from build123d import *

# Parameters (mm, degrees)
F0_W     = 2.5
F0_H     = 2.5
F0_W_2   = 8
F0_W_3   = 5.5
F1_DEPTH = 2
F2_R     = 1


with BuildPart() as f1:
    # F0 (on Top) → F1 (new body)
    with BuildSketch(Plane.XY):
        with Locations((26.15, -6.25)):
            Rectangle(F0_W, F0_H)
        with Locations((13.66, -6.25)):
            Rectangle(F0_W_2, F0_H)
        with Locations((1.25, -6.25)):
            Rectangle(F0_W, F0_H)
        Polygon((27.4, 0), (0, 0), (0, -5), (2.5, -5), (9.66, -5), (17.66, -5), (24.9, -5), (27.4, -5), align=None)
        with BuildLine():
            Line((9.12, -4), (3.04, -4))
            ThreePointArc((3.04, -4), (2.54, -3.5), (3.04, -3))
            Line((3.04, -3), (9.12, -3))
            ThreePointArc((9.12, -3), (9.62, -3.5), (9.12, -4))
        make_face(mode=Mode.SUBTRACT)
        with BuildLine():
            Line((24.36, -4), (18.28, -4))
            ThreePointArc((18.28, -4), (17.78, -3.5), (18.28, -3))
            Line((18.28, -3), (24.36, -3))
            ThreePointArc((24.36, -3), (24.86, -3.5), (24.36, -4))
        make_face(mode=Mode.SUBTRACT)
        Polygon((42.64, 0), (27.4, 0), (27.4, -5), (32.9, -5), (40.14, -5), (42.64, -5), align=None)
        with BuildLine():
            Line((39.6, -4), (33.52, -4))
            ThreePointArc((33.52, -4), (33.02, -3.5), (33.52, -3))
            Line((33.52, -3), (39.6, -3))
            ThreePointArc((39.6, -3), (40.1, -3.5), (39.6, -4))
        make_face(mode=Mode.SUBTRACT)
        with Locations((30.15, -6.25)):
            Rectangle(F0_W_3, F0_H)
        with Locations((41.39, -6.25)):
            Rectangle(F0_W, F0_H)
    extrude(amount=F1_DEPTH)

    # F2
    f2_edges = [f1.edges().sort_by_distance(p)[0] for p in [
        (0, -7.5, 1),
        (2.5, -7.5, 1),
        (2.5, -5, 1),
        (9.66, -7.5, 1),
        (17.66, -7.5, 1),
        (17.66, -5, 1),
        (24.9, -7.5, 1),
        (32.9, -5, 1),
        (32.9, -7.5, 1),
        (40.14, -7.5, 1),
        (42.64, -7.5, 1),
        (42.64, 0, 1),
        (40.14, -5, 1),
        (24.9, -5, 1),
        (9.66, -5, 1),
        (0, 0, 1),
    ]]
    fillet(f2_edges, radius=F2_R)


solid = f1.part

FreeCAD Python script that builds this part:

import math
import FreeCAD as App
import Part
import Sketcher

V = App.Vector
Q = App.Units.Quantity


def edges_at(feature, points):
    """Names of the edges that pass closest to the given points."""
    edges = feature.Shape.Edges
    near = lambda p: min(range(len(edges)), key=lambda i: edges[i].distToShape(Part.Vertex(*p))[0])
    return sorted({f"Edge{near(p) + 1}" for p in points})


def add_polygon(sketch, points):
    """Adds a closed chain of lines whose ends are joined by coincident constraints."""
    first, n = sketch.GeometryCount, len(points)
    for a, b in zip(points, points[1:] + points[:1]):
        sketch.addGeometry(Part.LineSegment(App.Vector(*a, 0), App.Vector(*b, 0)), False)
    for i in range(n):
        sketch.addConstraint(Sketcher.Constraint("Coincident", first + i, 2, first + (i + 1) % n, 1))

doc = App.newDocument("Part")
body = doc.addObject("PartDesign::Body", "Body")

# Sketch on XY plane
sketch1 = body.newObject("Sketcher::SketchObject", "Sketch")
sketch1.AttachmentSupport = (doc.getObject("XY_Plane"), [""])
sketch1.MapMode = "FlatFace"
add_polygon(sketch1, [(24.9, -5), (24.9, -7.5), (32.9, -7.5), (32.9, -5), (40.1, -5), (40.1, -7.5), (42.6, -7.5), (42.6, 0), (0, 0), (0, -7.5), (2.5, -7.5), (2.5, -5), (9.7, -5), (9.7, -7.5), (17.7, -7.5), (17.7, -5)])  # lines 0-15
sketch1.addGeometry(Part.ArcOfCircle(Part.Circle(V(9.1, -3.5, 0), V(0, 0, 1), 0.5), math.radians(-90), math.radians(90)), False)  # 16
sketch1.addGeometry(Part.LineSegment(V(9.1, -4, 0), V(3, -4, 0)), False)  # 17
sketch1.addGeometry(Part.ArcOfCircle(Part.Circle(V(3, -3.5, 0), V(0, 0, 1), 0.5), math.radians(90), math.radians(270)), False)  # 18
sketch1.addGeometry(Part.LineSegment(V(3, -3, 0), V(9.1, -3, 0)), False)  # 19
sketch1.addGeometry(Part.ArcOfCircle(Part.Circle(V(24.4, -3.5, 0), V(0, 0, 1), 0.5), math.radians(-90), math.radians(90)), False)  # 20
sketch1.addGeometry(Part.LineSegment(V(24.4, -4, 0), V(18.3, -4, 0)), False)  # 21
sketch1.addGeometry(Part.ArcOfCircle(Part.Circle(V(18.3, -3.5, 0), V(0, 0, 1), 0.5), math.radians(90), math.radians(270)), False)  # 22
sketch1.addGeometry(Part.LineSegment(V(18.3, -3, 0), V(24.4, -3, 0)), False)  # 23
sketch1.addGeometry(Part.ArcOfCircle(Part.Circle(V(39.6, -3.5, 0), V(0, 0, 1), 0.5), math.radians(-90), math.radians(90)), False)  # 24
sketch1.addGeometry(Part.LineSegment(V(39.6, -4, 0), V(33.5, -4, 0)), False)  # 25
sketch1.addGeometry(Part.ArcOfCircle(Part.Circle(V(33.5, -3.5, 0), V(0, 0, 1), 0.5), math.radians(90), math.radians(270)), False)  # 26
sketch1.addGeometry(Part.LineSegment(V(33.5, -3, 0), V(39.6, -3, 0)), False)  # 27
sketch1.addConstraint(Sketcher.Constraint("Tangent", 16, 1, 17, 1))
sketch1.addConstraint(Sketcher.Constraint("Tangent", 17, 2, 18, 2))
sketch1.addConstraint(Sketcher.Constraint("Tangent", 18, 1, 19, 1))
sketch1.addConstraint(Sketcher.Constraint("Tangent", 19, 2, 16, 2))
sketch1.addConstraint(Sketcher.Constraint("Tangent", 20, 1, 21, 1))
sketch1.addConstraint(Sketcher.Constraint("Tangent", 21, 2, 22, 2))
sketch1.addConstraint(Sketcher.Constraint("Tangent", 22, 1, 23, 1))
sketch1.addConstraint(Sketcher.Constraint("Tangent", 23, 2, 20, 2))
sketch1.addConstraint(Sketcher.Constraint("Tangent", 24, 1, 25, 1))
sketch1.addConstraint(Sketcher.Constraint("Tangent", 25, 2, 26, 2))
sketch1.addConstraint(Sketcher.Constraint("Tangent", 26, 1, 27, 1))
sketch1.addConstraint(Sketcher.Constraint("Tangent", 27, 2, 24, 2))
sketch1.addConstraint(Sketcher.Constraint("Vertical", 0))
sketch1.addConstraint(Sketcher.Constraint("Horizontal", 1))
sketch1.addConstraint(Sketcher.Constraint("Vertical", 2))
sketch1.addConstraint(Sketcher.Constraint("Horizontal", 3))
sketch1.addConstraint(Sketcher.Constraint("Vertical", 4))
sketch1.addConstraint(Sketcher.Constraint("Horizontal", 5))
sketch1.addConstraint(Sketcher.Constraint("Vertical", 6))
sketch1.addConstraint(Sketcher.Constraint("Horizontal", 7))
sketch1.addConstraint(Sketcher.Constraint("Vertical", 8))
sketch1.addConstraint(Sketcher.Constraint("Horizontal", 9))
sketch1.addConstraint(Sketcher.Constraint("Vertical", 10))
sketch1.addConstraint(Sketcher.Constraint("Horizontal", 11))
sketch1.addConstraint(Sketcher.Constraint("Vertical", 12))
sketch1.addConstraint(Sketcher.Constraint("Horizontal", 13))
sketch1.addConstraint(Sketcher.Constraint("Vertical", 14))
sketch1.addConstraint(Sketcher.Constraint("Horizontal", 15))
sketch1.addConstraint(Sketcher.Constraint("Horizontal", 17))
sketch1.addConstraint(Sketcher.Constraint("Horizontal", 19))
sketch1.addConstraint(Sketcher.Constraint("Horizontal", 21))
sketch1.addConstraint(Sketcher.Constraint("Horizontal", 23))
sketch1.addConstraint(Sketcher.Constraint("Horizontal", 25))
sketch1.addConstraint(Sketcher.Constraint("Horizontal", 27))
sketch1.addConstraint(Sketcher.Constraint("Coincident", 7, 2, -1, 1))
sketch1.addConstraint(Sketcher.Constraint("Equal", 18, 20))
sketch1.addConstraint(Sketcher.Constraint("Equal", 22, 24))
sketch1.addConstraint(Sketcher.Constraint("Horizontal", 18, 3, 20, 3))
sketch1.addConstraint(Sketcher.Constraint("Horizontal", 22, 3, 24, 3))
sketch1.addConstraint(Sketcher.Constraint("Horizontal", 1, 2, 4, 2))
sketch1.addConstraint(Sketcher.Constraint("Horizontal", 5, 2, 8, 2))
sketch1.addConstraint(Sketcher.Constraint("Horizontal", 3, 2, 10, 2))
sketch1.addConstraint(Sketcher.Constraint("Horizontal", 9, 2, 12, 2))
sketch1.addConstraint(Sketcher.Constraint("Horizontal", 11, 2, 14, 2))
sketch1.addConstraint(Sketcher.Constraint("Equal", 5, 9))
sketch1.addConstraint(Sketcher.Constraint("Equal", 1, 13))
sketch1.addConstraint(Sketcher.Constraint("Equal", 3, 15))
sketch1.addConstraint(Sketcher.Constraint("Equal", 19, 21))
sketch1.addConstraint(Sketcher.Constraint("Equal", 23, 25))
sketch1.addConstraint(Sketcher.Constraint("Equal", 9, 0))
sketch1.addConstraint(Sketcher.Constraint("Radius", 16, Q("0.5 mm")))
sketch1.addConstraint(Sketcher.Constraint("DistanceX", 1, 1, 1, 2, Q("8 mm")))
sketch1.addConstraint(Sketcher.Constraint("DistanceX", 5, 1, 5, 2, Q("2.5 mm")))
sketch1.addConstraint(Sketcher.Constraint("DistanceY", 6, 1, 6, 2, Q("7.5 mm")))
sketch1.addConstraint(Sketcher.Constraint("DistanceY", 16, 1, -1, 1, Q("4 mm")))
sketch1.addConstraint(Sketcher.Constraint("DistanceX", 3, 1, 3, 2, Q("7.24 mm")))
sketch1.addConstraint(Sketcher.Constraint("DistanceX", 7, 2, 7, 1, Q("42.64 mm")))
sketch1.addConstraint(Sketcher.Constraint("DistanceX", 17, 2, 17, 1, Q("6.08 mm")))
sketch1.addConstraint(Sketcher.Constraint("DistanceX", -1, 1, 24, 3, Q("39.6 mm")))
sketch1.addConstraint(Sketcher.Constraint("DistanceX", 16, 3, 26, 3, Q("24.4 mm")))
sketch1.addConstraint(Sketcher.Constraint("DistanceX", 13, 2, 20, 3, Q("6.7 mm")))
pad1 = body.newObject("PartDesign::Pad", "Pad")
pad1.Profile = sketch1
pad1.Length = 2
doc.recompute()

fillet = body.newObject("PartDesign::Fillet", "Fillet")
fillet.Base = (pad1, edges_at(pad1, [
    (0, -7.5, 1),
    (2.5, -7.5, 1),
    (2.5, -5, 1),
    (9.66, -7.5, 1),
    (17.66, -7.5, 1),
    (17.66, -5, 1),
    (24.9, -7.5, 1),
    (32.9, -5, 1),
    (32.9, -7.5, 1),
    (40.14, -7.5, 1),
    (42.64, -7.5, 1),
    (42.64, 0, 1),
    (40.14, -5, 1),
    (24.9, -5, 1),
    (9.66, -5, 1),
    (0, 0, 1),
]))
fillet.Radius = 1

doc.recompute()
